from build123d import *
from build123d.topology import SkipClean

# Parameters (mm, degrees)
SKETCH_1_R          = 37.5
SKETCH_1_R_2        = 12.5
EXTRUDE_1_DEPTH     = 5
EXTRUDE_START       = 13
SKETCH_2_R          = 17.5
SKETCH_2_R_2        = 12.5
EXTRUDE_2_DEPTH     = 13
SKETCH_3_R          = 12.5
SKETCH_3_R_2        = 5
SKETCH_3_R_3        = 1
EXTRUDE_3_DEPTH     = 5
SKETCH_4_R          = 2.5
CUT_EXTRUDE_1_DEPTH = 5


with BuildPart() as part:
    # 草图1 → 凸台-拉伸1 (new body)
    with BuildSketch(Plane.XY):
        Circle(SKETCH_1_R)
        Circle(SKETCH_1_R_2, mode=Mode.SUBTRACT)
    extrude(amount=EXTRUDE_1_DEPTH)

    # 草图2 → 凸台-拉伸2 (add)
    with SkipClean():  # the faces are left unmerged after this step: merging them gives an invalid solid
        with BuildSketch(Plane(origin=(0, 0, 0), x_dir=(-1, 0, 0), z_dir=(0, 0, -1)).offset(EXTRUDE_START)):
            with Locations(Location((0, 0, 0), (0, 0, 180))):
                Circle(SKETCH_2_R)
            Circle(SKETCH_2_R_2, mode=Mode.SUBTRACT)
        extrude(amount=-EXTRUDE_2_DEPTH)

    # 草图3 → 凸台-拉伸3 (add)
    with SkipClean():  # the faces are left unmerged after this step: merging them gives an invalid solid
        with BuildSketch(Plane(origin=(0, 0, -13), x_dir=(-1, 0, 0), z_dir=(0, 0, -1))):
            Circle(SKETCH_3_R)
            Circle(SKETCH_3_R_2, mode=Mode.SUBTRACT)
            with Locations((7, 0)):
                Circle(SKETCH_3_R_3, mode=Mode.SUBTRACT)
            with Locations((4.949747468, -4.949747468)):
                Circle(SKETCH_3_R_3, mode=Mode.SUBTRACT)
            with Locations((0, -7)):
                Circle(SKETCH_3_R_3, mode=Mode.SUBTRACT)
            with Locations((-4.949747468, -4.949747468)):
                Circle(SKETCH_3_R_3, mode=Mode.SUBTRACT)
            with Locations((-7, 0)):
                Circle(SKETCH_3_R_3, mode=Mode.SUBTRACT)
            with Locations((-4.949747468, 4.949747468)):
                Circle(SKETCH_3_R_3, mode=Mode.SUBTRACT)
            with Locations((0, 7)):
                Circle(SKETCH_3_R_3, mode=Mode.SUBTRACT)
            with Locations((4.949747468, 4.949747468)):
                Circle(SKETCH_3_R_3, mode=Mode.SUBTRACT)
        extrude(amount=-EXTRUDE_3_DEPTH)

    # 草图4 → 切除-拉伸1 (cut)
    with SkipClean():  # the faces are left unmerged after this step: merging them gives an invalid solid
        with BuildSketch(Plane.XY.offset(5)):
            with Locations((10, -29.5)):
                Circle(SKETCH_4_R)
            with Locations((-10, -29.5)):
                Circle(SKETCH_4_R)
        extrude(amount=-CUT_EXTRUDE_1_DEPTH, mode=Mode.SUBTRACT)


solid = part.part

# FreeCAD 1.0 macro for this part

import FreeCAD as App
import Part
import Sketcher
from FreeCAD import Vector

doc = App.newDocument("Part")
body = doc.addObject("PartDesign::Body", "Body")

# Sketch on XY plane
sketch1 = body.newObject("Sketcher::SketchObject", "Sketch")
sketch1.AttachmentSupport = (doc.getObject("XY_Plane"), [""])
sketch1.MapMode = "FlatFace"
sketch1.addGeometry([
    Part.Circle(Vector(0, 0, 0), Vector(0, 0, 1), 37.5),
    Part.Circle(Vector(0, 0, 0), Vector(0, 0, 1), 12.5),
], False)
sketch1.addConstraint([
    Sketcher.Constraint("Coincident", 0, 3, -1, 1),
    Sketcher.Constraint("Coincident", 1, 3, -1, 1),
    Sketcher.Constraint("Diameter", 0, 75.0),
    Sketcher.Constraint("Diameter", 1, 25.0),
])
pad1 = body.newObject("PartDesign::Pad", "Pad")
pad1.Profile = sketch1
pad1.Length = 5

# Sketch on XY plane
sketch2 = body.newObject("Sketcher::SketchObject", "Sketch001")
sketch2.AttachmentSupport = (doc.getObject("XY_Plane"), [""])
sketch2.MapMode = "FlatFace"
sketch2.AttachmentOffset = App.Placement(Vector(0, 0, -13), App.Rotation())
sketch2.addGeometry([
    Part.Circle(Vector(0, 0, 0), Vector(0, 0, 1), 17.5),
    Part.Circle(Vector(0, 0, 0), Vector(0, 0, 1), 12.5),
], False)
sketch2.addConstraint([
    Sketcher.Constraint("Coincident", 0, 3, -1, 1),
    Sketcher.Constraint("Coincident", 1, 3, -1, 1),
    Sketcher.Constraint("Diameter", 0, 35.0),
    Sketcher.Constraint("Diameter", 1, 25.0),
])
pad2 = body.newObject("PartDesign::Pad", "Pad001")
pad2.Profile = sketch2
pad2.Length = 13

# Sketch on XY plane
sketch3 = body.newObject("Sketcher::SketchObject", "Sketch002")
sketch3.AttachmentSupport = (doc.getObject("XY_Plane"), [""])
sketch3.MapMode = "FlatFace"
sketch3.AttachmentOffset = App.Placement(Vector(0, 0, -13), App.Rotation())
sketch3.addGeometry([
    Part.Circle(Vector(0, 0, 0), Vector(0, 0, 1), 12.5),  # 0
    Part.Circle(Vector(4.949747, -4.949747, 0), Vector(0, 0, 1), 1),  # 1
    Part.Circle(Vector(7, 0, 0), Vector(0, 0, 1), 1),  # 2
    Part.Circle(Vector(0, -7, 0), Vector(0, 0, 1), 1),  # 3
    Part.Circle(Vector(-4.949747, -4.949747, 0), Vector(0, 0, 1), 1),  # 4
    Part.Circle(Vector(0, 0, 0), Vector(0, 0, 1), 5),  # 5
    Part.Circle(Vector(-7, 0, 0), Vector(0, 0, 1), 1),  # 6
    Part.Circle(Vector(4.949747, 4.949747, 0), Vector(0, 0, 1), 1),  # 7
    Part.Circle(Vector(0, 7, 0), Vector(0, 0, 1), 1),  # 8
    Part.Circle(Vector(-4.949747, 4.949747, 0), Vector(0, 0, 1), 1),  # 9
], False)
sketch3.addConstraint([
    Sketcher.Constraint("Coincident", 0, 3, -1, 1),
    Sketcher.Constraint("Coincident", 5, 3, -1, 1),
    Sketcher.Constraint("Equal", 1, 2),
    Sketcher.Constraint("Equal", 2, 3),
    Sketcher.Constraint("Equal", 3, 4),
    Sketcher.Constraint("Equal", 4, 6),
    Sketcher.Constraint("Equal", 6, 7),
    Sketcher.Constraint("Equal", 7, 8),
    Sketcher.Constraint("Equal", 8, 9),
    Sketcher.Constraint("Symmetric", 2, 3, 6, 3, -1, 1),
    Sketcher.Constraint("Symmetric", 4, 3, 7, 3, -1, 1),
    Sketcher.Constraint("Symmetric", 3, 3, 8, 3, -1, 1),
    Sketcher.Constraint("Symmetric", 1, 3, 9, 3, -1, 1),
    Sketcher.Constraint("Symmetric", 1, 3, 4, 3, -2),
    Sketcher.Constraint("PointOnObject", 2, 3, -1),
    Sketcher.Constraint("PointOnObject", 3, 3, -2),
    Sketcher.Constraint("Diameter", 0, 25.0),
    Sketcher.Constraint("Diameter", 1, 2.0),
    Sketcher.Constraint("Diameter", 5, 10.0),
    Sketcher.Constraint("DistanceX", -1, 1, 2, 3, 7.0),
    Sketcher.Constraint("DistanceY", 3, 3, -1, 1, 7.0),
    Sketcher.Constraint("DistanceX", -1, 1, 1, 3, 4.949747),
    Sketcher.Constraint("DistanceY", 1, 3, -1, 1, 4.949747),
])
pad3 = body.newObject("PartDesign::Pad", "Pad002")
pad3.Profile = sketch3
pad3.Length = 5

# Sketch on XY plane
sketch4 = body.newObject("Sketcher::SketchObject", "Sketch003")
sketch4.AttachmentSupport = (doc.getObject("XY_Plane"), [""])
sketch4.MapMode = "FlatFace"
sketch4.AttachmentOffset = App.Placement(Vector(0, 0, 5), App.Rotation())
sketch4.addGeometry([
    Part.Circle(Vector(10, -29.5, 0), Vector(0, 0, 1), 2.5),
    Part.Circle(Vector(-10, -29.5, 0), Vector(0, 0, 1), 2.5),
], False)
sketch4.addConstraint([
    Sketcher.Constraint("Equal", 0, 1),
    Sketcher.Constraint("Symmetric", 0, 3, 1, 3, -2),
    Sketcher.Constraint("Diameter", 0, 5.0),
    Sketcher.Constraint("DistanceX", -1, 1, 0, 3, 10.0),
    Sketcher.Constraint("DistanceY", 0, 3, -1, 1, 29.5),
])
pocket1 = body.newObject("PartDesign::Pocket", "Pocket")
pocket1.Profile = sketch4
pocket1.Length = 5

doc.recompute()
